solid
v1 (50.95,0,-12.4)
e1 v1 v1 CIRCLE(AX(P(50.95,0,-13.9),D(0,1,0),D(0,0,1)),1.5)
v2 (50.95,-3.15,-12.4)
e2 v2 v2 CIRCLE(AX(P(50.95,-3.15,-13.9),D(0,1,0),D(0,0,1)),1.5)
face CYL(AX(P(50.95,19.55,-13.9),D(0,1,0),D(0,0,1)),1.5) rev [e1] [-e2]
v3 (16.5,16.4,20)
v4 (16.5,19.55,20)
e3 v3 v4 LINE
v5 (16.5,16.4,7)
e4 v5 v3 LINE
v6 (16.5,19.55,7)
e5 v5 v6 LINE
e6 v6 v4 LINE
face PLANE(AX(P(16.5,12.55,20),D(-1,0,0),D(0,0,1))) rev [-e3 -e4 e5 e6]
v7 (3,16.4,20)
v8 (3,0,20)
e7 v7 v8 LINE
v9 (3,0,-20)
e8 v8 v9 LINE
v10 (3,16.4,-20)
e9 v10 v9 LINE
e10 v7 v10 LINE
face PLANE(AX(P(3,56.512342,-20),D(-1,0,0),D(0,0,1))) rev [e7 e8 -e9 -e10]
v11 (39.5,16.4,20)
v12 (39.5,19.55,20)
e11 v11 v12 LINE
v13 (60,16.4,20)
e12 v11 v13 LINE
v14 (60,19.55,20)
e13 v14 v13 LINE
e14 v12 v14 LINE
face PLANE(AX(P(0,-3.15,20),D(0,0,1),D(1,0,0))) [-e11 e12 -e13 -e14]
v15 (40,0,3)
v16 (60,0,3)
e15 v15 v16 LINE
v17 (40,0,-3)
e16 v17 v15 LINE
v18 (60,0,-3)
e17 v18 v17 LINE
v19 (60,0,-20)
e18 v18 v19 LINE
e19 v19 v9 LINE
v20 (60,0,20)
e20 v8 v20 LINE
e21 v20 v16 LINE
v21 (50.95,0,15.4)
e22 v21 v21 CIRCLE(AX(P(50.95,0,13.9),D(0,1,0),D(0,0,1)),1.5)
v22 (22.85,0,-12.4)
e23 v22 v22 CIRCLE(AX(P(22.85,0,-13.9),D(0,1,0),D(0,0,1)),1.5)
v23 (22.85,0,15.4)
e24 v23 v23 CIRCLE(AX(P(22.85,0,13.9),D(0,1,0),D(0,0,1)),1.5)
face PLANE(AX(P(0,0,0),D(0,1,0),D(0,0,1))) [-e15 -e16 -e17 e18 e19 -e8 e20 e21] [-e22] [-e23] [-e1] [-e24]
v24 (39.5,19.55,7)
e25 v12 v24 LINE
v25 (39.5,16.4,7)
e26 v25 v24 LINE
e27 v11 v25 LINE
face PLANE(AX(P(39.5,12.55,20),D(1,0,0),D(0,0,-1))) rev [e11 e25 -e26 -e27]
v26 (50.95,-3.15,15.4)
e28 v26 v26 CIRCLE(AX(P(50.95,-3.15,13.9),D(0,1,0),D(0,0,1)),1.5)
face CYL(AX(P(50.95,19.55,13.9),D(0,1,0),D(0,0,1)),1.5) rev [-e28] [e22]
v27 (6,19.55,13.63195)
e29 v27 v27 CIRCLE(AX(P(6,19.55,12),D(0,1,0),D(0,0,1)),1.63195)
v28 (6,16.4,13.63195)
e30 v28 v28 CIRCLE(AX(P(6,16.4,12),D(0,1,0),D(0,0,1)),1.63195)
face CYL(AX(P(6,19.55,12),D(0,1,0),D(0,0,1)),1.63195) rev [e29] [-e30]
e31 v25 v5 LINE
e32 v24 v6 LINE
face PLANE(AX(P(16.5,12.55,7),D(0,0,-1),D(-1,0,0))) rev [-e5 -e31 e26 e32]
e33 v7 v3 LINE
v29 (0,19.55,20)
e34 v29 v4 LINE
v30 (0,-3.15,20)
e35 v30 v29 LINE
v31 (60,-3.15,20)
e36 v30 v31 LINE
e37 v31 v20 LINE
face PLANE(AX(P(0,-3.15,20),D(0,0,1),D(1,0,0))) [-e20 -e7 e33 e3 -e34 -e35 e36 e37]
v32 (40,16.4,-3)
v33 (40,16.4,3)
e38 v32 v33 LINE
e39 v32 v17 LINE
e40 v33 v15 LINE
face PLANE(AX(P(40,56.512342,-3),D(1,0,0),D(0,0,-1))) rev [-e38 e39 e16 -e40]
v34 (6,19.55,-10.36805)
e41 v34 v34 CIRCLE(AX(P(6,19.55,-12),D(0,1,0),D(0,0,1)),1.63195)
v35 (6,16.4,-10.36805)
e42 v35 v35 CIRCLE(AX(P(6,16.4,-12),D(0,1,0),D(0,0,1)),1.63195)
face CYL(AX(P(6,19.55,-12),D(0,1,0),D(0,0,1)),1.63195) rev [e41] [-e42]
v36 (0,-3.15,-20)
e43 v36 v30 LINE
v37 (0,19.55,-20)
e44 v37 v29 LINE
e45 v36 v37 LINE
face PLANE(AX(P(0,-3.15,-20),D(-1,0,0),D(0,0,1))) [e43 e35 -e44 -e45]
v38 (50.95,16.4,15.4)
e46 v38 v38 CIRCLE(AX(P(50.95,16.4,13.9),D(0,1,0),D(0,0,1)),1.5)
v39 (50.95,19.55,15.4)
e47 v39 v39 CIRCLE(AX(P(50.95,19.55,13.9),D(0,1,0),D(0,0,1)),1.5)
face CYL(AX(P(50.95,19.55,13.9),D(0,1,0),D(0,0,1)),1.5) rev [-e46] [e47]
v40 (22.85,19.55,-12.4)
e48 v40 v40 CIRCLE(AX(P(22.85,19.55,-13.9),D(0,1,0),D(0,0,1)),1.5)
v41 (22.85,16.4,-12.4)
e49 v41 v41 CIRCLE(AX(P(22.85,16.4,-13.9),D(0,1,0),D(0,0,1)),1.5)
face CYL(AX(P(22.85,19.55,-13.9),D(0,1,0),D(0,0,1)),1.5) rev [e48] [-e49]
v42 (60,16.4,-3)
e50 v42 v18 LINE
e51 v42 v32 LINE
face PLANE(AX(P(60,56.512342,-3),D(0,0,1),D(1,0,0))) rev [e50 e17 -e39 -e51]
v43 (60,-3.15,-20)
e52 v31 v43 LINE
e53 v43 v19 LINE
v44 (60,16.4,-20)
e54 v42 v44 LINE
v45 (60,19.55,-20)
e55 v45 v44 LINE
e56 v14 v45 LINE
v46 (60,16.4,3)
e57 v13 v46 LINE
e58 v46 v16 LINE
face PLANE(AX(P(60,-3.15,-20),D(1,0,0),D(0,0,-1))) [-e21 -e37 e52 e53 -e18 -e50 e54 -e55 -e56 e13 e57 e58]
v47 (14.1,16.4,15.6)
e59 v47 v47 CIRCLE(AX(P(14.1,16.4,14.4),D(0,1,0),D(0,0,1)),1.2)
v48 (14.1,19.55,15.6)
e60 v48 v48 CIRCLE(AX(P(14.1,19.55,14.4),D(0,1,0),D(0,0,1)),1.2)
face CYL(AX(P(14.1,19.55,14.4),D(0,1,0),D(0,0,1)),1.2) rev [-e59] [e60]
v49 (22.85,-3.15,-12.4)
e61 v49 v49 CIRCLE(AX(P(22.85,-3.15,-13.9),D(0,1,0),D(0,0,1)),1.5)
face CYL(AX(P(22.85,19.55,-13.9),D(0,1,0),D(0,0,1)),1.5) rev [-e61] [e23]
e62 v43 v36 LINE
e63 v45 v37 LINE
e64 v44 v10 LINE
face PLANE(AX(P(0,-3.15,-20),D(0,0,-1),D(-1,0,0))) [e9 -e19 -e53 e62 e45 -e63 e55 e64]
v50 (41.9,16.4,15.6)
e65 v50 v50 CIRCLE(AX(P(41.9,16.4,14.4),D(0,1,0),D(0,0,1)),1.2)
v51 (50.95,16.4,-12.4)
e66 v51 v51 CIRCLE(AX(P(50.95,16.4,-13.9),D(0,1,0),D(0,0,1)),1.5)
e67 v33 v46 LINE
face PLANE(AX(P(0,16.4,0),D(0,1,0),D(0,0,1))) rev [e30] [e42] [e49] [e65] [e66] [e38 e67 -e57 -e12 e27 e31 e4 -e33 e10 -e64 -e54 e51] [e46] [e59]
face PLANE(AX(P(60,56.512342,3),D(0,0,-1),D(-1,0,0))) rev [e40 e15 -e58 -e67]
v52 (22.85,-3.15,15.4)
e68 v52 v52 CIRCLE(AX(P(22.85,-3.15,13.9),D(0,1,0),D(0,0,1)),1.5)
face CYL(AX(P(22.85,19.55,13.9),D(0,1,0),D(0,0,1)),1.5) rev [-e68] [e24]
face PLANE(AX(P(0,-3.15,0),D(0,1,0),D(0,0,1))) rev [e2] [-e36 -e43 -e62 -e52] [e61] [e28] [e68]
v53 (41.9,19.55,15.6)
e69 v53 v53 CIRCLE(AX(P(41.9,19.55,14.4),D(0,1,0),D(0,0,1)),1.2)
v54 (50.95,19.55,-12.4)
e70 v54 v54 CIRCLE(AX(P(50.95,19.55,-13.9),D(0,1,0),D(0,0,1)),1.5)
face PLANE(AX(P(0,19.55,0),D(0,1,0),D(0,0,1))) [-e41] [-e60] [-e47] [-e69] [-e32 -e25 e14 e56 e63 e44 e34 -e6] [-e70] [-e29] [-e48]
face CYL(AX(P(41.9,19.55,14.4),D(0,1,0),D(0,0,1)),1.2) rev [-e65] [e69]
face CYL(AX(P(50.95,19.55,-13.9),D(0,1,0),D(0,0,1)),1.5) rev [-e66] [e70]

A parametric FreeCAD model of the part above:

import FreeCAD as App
import Part
import Sketcher

V = App.Vector
Q = App.Units.Quantity

doc = App.newDocument("Part")
body = doc.addObject("PartDesign::Body", "Body")

# Sketch on XZ plane
sketch1 = body.newObject("Sketcher::SketchObject", "Sketch")
sketch1.AttachmentSupport = (doc.getObject("XZ_Plane"), [""])
sketch1.MapMode = "FlatFace"
sketch1.addGeometry([
    Part.LineSegment(V(0, -20, 0), V(0, 20, 0)),
    Part.LineSegment(V(0, 20, 0), V(60, 20, 0)),
    Part.LineSegment(V(60, 20, 0), V(60, -20, 0)),
    Part.LineSegment(V(60, -20, 0), V(0, -20, 0)),
], False)
sketch1.addConstraint([
    Sketcher.Constraint("Coincident", 0, 2, 1, 1),
    Sketcher.Constraint("Coincident", 1, 2, 2, 1),
    Sketcher.Constraint("Coincident", 2, 2, 3, 1),
    Sketcher.Constraint("Coincident", 3, 2, 0, 1),
    Sketcher.Constraint("Vertical", 0),
    Sketcher.Constraint("Horizontal", 1),
    Sketcher.Constraint("Vertical", 2),
    Sketcher.Constraint("Horizontal", 3),
    Sketcher.Constraint("Symmetric", 0, 2, 3, 2, -1, 1),
    Sketcher.Constraint("DistanceX", 1, 1, 1, 2, Q("60 mm")),
    Sketcher.Constraint("DistanceY", 0, 1, 0, 2, Q("40 mm")),
])
pad1 = body.newObject("PartDesign::Pad", "Pad")
pad1.Profile = sketch1
pad1.Length = 3.15
body2 = doc.addObject("PartDesign::Body", "Body001")

# Sketch on XZ plane
sketch2 = body2.newObject("Sketcher::SketchObject", "Sketch001")
sketch2.AttachmentSupport = (doc.getObject("XZ_Plane001"), [""])
sketch2.MapMode = "FlatFace"
sketch2.AttachmentOffset = App.Placement(V(0, 0, -16.4), App.Rotation())
sketch2.addGeometry([
    Part.LineSegment(V(0, -20, 0), V(0, 20, 0)),
    Part.LineSegment(V(0, 20, 0), V(60, 20, 0)),
    Part.LineSegment(V(60, 20, 0), V(60, -20, 0)),
    Part.LineSegment(V(60, -20, 0), V(0, -20, 0)),
], False)
sketch2.addConstraint([
    Sketcher.Constraint("Coincident", 0, 2, 1, 1),
    Sketcher.Constraint("Coincident", 1, 2, 2, 1),
    Sketcher.Constraint("Coincident", 2, 2, 3, 1),
    Sketcher.Constraint("Coincident", 3, 2, 0, 1),
    Sketcher.Constraint("Vertical", 0),
    Sketcher.Constraint("Horizontal", 1),
    Sketcher.Constraint("Vertical", 2),
    Sketcher.Constraint("Horizontal", 3),
    Sketcher.Constraint("Symmetric", 0, 2, 3, 2, -1, 1),
    Sketcher.Constraint("DistanceX", 1, 1, 1, 2, Q("60 mm")),
    Sketcher.Constraint("DistanceY", 0, 1, 0, 2, Q("40 mm")),
])
pad2 = body2.newObject("PartDesign::Pad", "Pad001")
pad2.Profile = sketch2
pad2.Length = 3.15
pad2.Reversed = True
body.AllowCompound = True
doc.recompute()

boolean = body.newObject("PartDesign::Boolean", "Boolean")
boolean.Type = "Fuse"
boolean.addObjects([body2])

# Sketch on XZ plane
sketch3 = body.newObject("Sketcher::SketchObject", "Sketch002")
sketch3.AttachmentSupport = (doc.getObject("XZ_Plane"), [""])
sketch3.MapMode = "FlatFace"
sketch3.addGeometry([
    Part.LineSegment(V(0, -20, 0), V(0, 20, 0)),  # 0
    Part.LineSegment(V(0, 20, 0), V(3, 20, 0)),  # 1
    Part.LineSegment(V(3, 20, 0), V(3, -20, 0)),  # 2
    Part.LineSegment(V(3, -20, 0), V(0, -20, 0)),  # 3
    Part.LineSegment(V(40, -3, 0), V(40, 3, 0)),  # 4
    Part.LineSegment(V(40, 3, 0), V(60, 3, 0)),  # 5
    Part.LineSegment(V(60, 3, 0), V(60, -3, 0)),  # 6
    Part.LineSegment(V(60, -3, 0), V(40, -3, 0)),  # 7
], False)
sketch3.addConstraint([
    Sketcher.Constraint("Coincident", 0, 2, 1, 1),
    Sketcher.Constraint("Coincident", 1, 2, 2, 1),
    Sketcher.Constraint("Coincident", 2, 2, 3, 1),
    Sketcher.Constraint("Coincident", 3, 2, 0, 1),
    Sketcher.Constraint("Coincident", 4, 2, 5, 1),
    Sketcher.Constraint("Coincident", 5, 2, 6, 1),
    Sketcher.Constraint("Coincident", 6, 2, 7, 1),
    Sketcher.Constraint("Coincident", 7, 2, 4, 1),
    Sketcher.Constraint("Vertical", 0),
    Sketcher.Constraint("Horizontal", 1),
    Sketcher.Constraint("Vertical", 2),
    Sketcher.Constraint("Horizontal", 3),
    Sketcher.Constraint("Vertical", 4),
    Sketcher.Constraint("Horizontal", 5),
    Sketcher.Constraint("Vertical", 6),
    Sketcher.Constraint("Horizontal", 7),
    Sketcher.Constraint("Symmetric", 0, 2, 3, 2, -1, 1),
    Sketcher.Constraint("DistanceX", 1, 1, 1, 2, Q("3 mm")),
    Sketcher.Constraint("DistanceX", 5, 1, 5, 2, Q("20 mm")),
    Sketcher.Constraint("DistanceY", 0, 1, 0, 2, Q("40 mm")),
    Sketcher.Constraint("DistanceY", 4, 1, 4, 2, Q("6 mm")),
    Sketcher.Constraint("DistanceX", -1, 1, 4, 2, Q("40 mm")),
    Sketcher.Constraint("DistanceY", -1, 1, 4, 2, Q("3 mm")),
])
pad3 = body.newObject("PartDesign::Pad", "Pad002")
pad3.Profile = sketch3
pad3.Length = 16.4
pad3.Reversed = True

# Sketch on XZ plane
sketch4 = body.newObject("Sketcher::SketchObject", "Sketch003")
sketch4.AttachmentSupport = (doc.getObject("XZ_Plane"), [""])
sketch4.MapMode = "FlatFace"
sketch4.AttachmentOffset = App.Placement(V(0, 0, -19.55), App.Rotation())
sketch4.addGeometry([
    Part.Circle(V(14.1, 14.4, 0), V(0, 0, 1), 1.2),
    Part.Circle(V(41.9, 14.4, 0), V(0, 0, 1), 1.2),
], False)
sketch4.addConstraint([
    Sketcher.Constraint("Equal", 0, 1),
    Sketcher.Constraint("Horizontal", 0, 3, 1, 3),
    Sketcher.Constraint("Diameter", 0, Q("2.4 mm")),
    Sketcher.Constraint("DistanceX", -1, 1, 0, 3, Q("14.1 mm")),
    Sketcher.Constraint("DistanceY", -1, 1, 0, 3, Q("14.4 mm")),
    Sketcher.Constraint("DistanceX", -1, 1, 1, 3, Q("41.9 mm")),
])
doc.recompute()
hole = body.newObject("PartDesign::Hole", "Hole")
hole.Profile = sketch4
hole.ThreadType = "None"
hole.Diameter = 2.4
hole.DepthType = "Dimension"
hole.Depth = 5
hole.DrillPoint = "Angled"
hole.DrillPointAngle = 118
hole.Reversed = True

# Sketch on XZ plane
sketch5 = body.newObject("Sketcher::SketchObject", "Sketch004")
sketch5.AttachmentSupport = (doc.getObject("XZ_Plane"), [""])
sketch5.MapMode = "FlatFace"
sketch5.AttachmentOffset = App.Placement(V(0, 0, -19.55), App.Rotation())
sketch5.addGeometry([
    Part.Circle(V(50.95, 13.9, 0), V(0, 0, 1), 1.5),
    Part.Circle(V(22.85, -13.9, 0), V(0, 0, 1), 1.5),
    Part.Circle(V(50.95, -13.9, 0), V(0, 0, 1), 1.5),
    Part.Circle(V(22.85, 13.9, 0), V(0, 0, 1), 1.5),
], False)
sketch5.addConstraint([
    Sketcher.Constraint("Equal", 0, 1),
    Sketcher.Constraint("Equal", 1, 2),
    Sketcher.Constraint("Equal", 2, 3),
    Sketcher.Constraint("Symmetric", 0, 3, 2, 3, -1),
    Sketcher.Constraint("Symmetric", 1, 3, 3, 3, -1),
    Sketcher.Constraint("Horizontal", 1, 3, 2, 3),
    Sketcher.Constraint("Diameter", 0, Q("3 mm")),
    Sketcher.Constraint("DistanceY", -1, 1, 0, 3, Q("13.9 mm")),
    Sketcher.Constraint("DistanceX", 1, 3, 0, 3, Q("28.1 mm")),
    Sketcher.Constraint("DistanceX", -1, 1, 0, 3, Q("50.95 mm")),
])
doc.recompute()
hole2 = body.newObject("PartDesign::Hole", "Hole001")
hole2.Profile = sketch5
hole2.ThreadType = "None"
hole2.Diameter = 3
hole2.DepthType = "ThroughAll"
hole2.Reversed = True

# Sketch on XZ plane
sketch6 = body.newObject("Sketcher::SketchObject", "Sketch005")
sketch6.AttachmentSupport = (doc.getObject("XZ_Plane"), [""])
sketch6.MapMode = "FlatFace"
sketch6.AttachmentOffset = App.Placement(V(0, 0, -19.55), App.Rotation())
sketch6.addGeometry([
    Part.LineSegment(V(16.5, 7, 0), V(16.5, 20, 0)),
    Part.LineSegment(V(16.5, 20, 0), V(39.5, 20, 0)),
    Part.LineSegment(V(39.5, 20, 0), V(39.5, 7, 0)),
    Part.LineSegment(V(39.5, 7, 0), V(16.5, 7, 0)),
], False)
sketch6.addConstraint([
    Sketcher.Constraint("Coincident", 0, 2, 1, 1),
    Sketcher.Constraint("Coincident", 1, 2, 2, 1),
    Sketcher.Constraint("Coincident", 2, 2, 3, 1),
    Sketcher.Constraint("Coincident", 3, 2, 0, 1),
    Sketcher.Constraint("Vertical", 0),
    Sketcher.Constraint("Horizontal", 1),
    Sketcher.Constraint("Vertical", 2),
    Sketcher.Constraint("Horizontal", 3),
    Sketcher.Constraint("DistanceX", 1, 1, 1, 2, Q("23 mm")),
    Sketcher.Constraint("DistanceY", 0, 1, 0, 2, Q("13 mm")),
    Sketcher.Constraint("DistanceY", -1, 1, 0, 2, Q("20 mm")),
    Sketcher.Constraint("DistanceX", -1, 1, 0, 2, Q("16.5 mm")),
])
pocket1 = body.newObject("PartDesign::Pocket", "Pocket")
pocket1.Profile = sketch6
pocket1.Length = 7
pocket1.Reversed = True

# Sketch on XZ plane
sketch7 = body.newObject("Sketcher::SketchObject", "Sketch006")
sketch7.AttachmentSupport = (doc.getObject("XZ_Plane"), [""])
sketch7.MapMode = "FlatFace"
sketch7.AttachmentOffset = App.Placement(V(0, 0, -19.55), App.Rotation())
sketch7.addGeometry([
    Part.Circle(V(6, -12, 0), V(0, 0, 1), 1.63195),
    Part.Circle(V(6, 12, 0), V(0, 0, 1), 1.63195),
], False)
sketch7.addConstraint([
    Sketcher.Constraint("Equal", 0, 1),
    Sketcher.Constraint("Symmetric", 0, 3, 1, 3, -1),
    Sketcher.Constraint("DistanceX", -1, 1, 0, 3, Q("6 mm")),
    Sketcher.Constraint("DistanceY", 0, 3, -1, 1, Q("12 mm")),
    Sketcher.Constraint("Diameter", 0, Q("3.2639 mm")),
])
doc.recompute()
hole3 = body.newObject("PartDesign::Hole", "Hole002")
hole3.Profile = sketch7
hole3.ThreadType = "None"
hole3.Diameter = 3.2639
hole3.DepthType = "Dimension"
hole3.Depth = 10
hole3.DrillPoint = "Angled"
hole3.DrillPointAngle = 118
hole3.Reversed = True

doc.recompute()
